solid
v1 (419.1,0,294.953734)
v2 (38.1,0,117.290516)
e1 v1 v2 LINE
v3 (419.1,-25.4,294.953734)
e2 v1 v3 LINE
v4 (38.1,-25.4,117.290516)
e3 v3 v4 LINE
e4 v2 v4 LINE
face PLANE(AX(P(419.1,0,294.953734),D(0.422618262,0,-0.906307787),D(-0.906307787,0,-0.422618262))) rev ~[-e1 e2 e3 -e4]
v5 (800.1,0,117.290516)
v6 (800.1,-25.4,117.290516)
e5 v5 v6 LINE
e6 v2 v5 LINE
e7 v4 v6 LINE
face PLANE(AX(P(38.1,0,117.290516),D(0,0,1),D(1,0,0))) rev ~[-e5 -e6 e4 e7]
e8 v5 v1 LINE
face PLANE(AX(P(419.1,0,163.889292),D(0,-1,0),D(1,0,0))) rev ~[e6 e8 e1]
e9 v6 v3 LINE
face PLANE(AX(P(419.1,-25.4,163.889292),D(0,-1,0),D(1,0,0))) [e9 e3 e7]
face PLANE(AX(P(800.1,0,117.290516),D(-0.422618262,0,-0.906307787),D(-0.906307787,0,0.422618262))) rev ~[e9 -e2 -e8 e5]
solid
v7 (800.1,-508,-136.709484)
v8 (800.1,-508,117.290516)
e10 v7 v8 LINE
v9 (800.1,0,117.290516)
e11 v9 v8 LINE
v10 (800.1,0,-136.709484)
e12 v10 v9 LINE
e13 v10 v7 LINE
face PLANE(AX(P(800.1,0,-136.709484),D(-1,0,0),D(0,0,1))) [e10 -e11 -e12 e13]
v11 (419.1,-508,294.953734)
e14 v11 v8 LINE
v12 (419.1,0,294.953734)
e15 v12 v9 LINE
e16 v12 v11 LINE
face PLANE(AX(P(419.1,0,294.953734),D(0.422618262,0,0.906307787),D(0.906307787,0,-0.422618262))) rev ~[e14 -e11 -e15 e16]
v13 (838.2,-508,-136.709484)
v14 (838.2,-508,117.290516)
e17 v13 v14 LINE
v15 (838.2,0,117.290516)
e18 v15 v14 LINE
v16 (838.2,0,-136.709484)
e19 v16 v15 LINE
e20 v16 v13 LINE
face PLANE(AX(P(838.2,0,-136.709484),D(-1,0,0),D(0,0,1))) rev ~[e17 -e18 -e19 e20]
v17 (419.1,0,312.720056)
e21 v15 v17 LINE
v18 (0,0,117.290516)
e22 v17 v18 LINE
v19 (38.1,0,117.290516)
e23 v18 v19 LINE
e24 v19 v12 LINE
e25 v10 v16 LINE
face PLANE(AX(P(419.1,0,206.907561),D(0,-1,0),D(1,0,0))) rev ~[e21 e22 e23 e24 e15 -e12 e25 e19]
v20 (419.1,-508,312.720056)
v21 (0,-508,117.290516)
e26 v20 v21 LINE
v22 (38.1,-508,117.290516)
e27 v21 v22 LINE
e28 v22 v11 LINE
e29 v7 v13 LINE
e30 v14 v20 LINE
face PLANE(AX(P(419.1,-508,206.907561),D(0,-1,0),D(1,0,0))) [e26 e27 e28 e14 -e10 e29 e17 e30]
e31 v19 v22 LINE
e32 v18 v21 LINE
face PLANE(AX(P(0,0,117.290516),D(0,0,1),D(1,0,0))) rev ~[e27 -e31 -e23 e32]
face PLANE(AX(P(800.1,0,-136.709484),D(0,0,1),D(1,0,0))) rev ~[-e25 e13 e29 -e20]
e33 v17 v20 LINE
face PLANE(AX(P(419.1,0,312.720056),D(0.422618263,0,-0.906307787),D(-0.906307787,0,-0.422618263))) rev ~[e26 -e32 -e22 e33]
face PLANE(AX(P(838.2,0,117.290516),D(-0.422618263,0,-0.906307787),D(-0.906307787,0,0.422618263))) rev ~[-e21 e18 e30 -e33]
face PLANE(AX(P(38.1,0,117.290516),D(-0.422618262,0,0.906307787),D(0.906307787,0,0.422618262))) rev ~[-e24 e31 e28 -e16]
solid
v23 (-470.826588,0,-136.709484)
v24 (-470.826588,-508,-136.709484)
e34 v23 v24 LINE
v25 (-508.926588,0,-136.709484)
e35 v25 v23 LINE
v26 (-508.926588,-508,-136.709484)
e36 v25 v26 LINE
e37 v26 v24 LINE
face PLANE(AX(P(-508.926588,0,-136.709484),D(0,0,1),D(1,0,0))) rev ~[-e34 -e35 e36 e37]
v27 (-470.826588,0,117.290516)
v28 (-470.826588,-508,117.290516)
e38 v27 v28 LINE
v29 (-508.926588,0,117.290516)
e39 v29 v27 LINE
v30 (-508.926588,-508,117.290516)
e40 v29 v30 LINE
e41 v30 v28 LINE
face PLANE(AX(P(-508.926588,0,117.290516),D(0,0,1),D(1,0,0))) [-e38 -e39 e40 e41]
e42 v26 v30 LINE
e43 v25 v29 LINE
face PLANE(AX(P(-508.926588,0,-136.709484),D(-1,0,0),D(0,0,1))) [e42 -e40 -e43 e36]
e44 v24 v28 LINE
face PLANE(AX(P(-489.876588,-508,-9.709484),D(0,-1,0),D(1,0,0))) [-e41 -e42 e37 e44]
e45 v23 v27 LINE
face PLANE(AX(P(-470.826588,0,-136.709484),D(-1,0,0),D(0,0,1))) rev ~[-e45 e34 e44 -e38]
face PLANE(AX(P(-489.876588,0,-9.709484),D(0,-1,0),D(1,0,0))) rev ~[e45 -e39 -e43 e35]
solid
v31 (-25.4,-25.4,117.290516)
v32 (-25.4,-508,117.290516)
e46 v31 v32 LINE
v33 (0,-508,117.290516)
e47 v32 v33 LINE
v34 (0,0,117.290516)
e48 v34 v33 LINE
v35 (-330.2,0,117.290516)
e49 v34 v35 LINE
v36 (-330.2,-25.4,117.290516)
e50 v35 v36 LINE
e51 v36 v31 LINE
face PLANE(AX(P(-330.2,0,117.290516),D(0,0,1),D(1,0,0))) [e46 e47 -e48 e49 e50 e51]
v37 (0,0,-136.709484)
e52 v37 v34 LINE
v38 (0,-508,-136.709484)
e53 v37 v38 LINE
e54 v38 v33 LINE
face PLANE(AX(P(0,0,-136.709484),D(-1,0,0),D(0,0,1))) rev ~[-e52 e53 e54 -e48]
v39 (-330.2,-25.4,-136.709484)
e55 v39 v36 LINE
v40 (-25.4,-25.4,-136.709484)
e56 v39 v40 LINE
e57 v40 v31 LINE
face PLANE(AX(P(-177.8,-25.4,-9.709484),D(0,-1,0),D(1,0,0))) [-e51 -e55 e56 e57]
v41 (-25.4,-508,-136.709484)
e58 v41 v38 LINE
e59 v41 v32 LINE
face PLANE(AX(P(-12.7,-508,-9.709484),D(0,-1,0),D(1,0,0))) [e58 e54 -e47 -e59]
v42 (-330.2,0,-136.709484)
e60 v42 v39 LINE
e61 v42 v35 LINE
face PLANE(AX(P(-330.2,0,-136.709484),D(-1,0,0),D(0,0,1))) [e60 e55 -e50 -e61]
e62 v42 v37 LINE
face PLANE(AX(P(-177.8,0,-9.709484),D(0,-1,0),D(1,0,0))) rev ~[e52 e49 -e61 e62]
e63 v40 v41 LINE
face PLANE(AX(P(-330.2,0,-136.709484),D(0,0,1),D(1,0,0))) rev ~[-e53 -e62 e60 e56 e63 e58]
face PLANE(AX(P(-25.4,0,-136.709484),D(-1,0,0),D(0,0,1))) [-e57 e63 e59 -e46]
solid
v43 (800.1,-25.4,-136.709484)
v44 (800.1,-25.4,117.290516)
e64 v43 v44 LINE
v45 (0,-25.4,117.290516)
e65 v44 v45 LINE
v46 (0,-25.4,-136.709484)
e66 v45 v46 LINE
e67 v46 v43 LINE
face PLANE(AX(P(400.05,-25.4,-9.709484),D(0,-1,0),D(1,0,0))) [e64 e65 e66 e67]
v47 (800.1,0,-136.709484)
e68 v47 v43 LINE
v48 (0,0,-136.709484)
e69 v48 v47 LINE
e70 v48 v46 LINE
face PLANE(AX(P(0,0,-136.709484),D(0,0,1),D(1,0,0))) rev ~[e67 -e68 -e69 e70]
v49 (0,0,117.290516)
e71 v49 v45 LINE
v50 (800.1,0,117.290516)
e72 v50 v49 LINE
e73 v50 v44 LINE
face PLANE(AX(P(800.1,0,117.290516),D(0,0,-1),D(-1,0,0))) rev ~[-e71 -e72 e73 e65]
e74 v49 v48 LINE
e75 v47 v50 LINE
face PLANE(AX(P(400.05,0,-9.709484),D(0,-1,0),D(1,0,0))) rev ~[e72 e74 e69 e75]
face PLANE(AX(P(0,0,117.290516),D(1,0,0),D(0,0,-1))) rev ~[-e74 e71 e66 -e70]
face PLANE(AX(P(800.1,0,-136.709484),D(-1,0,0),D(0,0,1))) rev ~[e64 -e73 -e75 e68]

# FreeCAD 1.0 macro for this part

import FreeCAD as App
import Part
import Sketcher
from FreeCAD import Vector
Q = App.Units.Quantity


def add_polygon(sketch, points):
    """Adds a closed chain of lines whose ends are joined by coincident constraints."""
    first, n = sketch.GeometryCount, len(points)
    for a, b in zip(points, points[1:] + points[:1]):
        sketch.addGeometry(Part.LineSegment(App.Vector(*a, 0), App.Vector(*b, 0)), False)
    for i in range(n):
        sketch.addConstraint(Sketcher.Constraint("Coincident", first + i, 2, first + (i + 1) % n, 1))

doc = App.newDocument("Part")
body = doc.addObject("PartDesign::Body", "Body")

sketch1 = body.newObject("Sketcher::SketchObject", "Sketch")
sketch1.AttachmentSupport = (doc.getObject("XZ_Plane"), [""])
sketch1.MapMode = "FlatFace"
add_polygon(sketch1, [(-25, 117), (-25, -137), (0, -137), (0, 117)])
sketch1.addConstraint([
    Sketcher.Constraint("Vertical", 0),
    Sketcher.Constraint("Horizontal", 1),
    Sketcher.Constraint("Vertical", 2),
    Sketcher.Constraint("Horizontal", 3),
    Sketcher.Constraint("PointOnObject", 1, 2, -2),
    Sketcher.Constraint("DistanceX", 1, 1, 1, 2, Q("1 in")),
    Sketcher.Constraint("DistanceY", 0, 2, 0, 1, Q("10 in")),
    Sketcher.Constraint("DistanceY", 0, 2, -1, 1, Q("136.709484 mm")),
])
pad1 = body.newObject("PartDesign::Pad", "Pad")
pad1.Profile = sketch1
pad1.Length = Q("20 in")
body2 = doc.addObject("PartDesign::Body", "Body001")

sketch2 = body2.newObject("Sketcher::SketchObject", "Sketch001")
sketch2.AttachmentSupport = (doc.getObject("XZ_Plane001"), [""])
sketch2.MapMode = "FlatFace"
add_polygon(sketch2, [(800, 117), (800, -137), (838, -137), (838, 117)])
sketch2.addConstraint([
    Sketcher.Constraint("Vertical", 0),
    Sketcher.Constraint("Horizontal", 1),
    Sketcher.Constraint("Vertical", 2),
    Sketcher.Constraint("Horizontal", 3),
    Sketcher.Constraint("DistanceY", 0, 2, 0, 1, Q("10 in")),
    Sketcher.Constraint("DistanceX", 1, 1, 1, 2, Q("1.5 in")),
    Sketcher.Constraint("DistanceX", -1, 1, 1, 2, Q("33 in")),
    Sketcher.Constraint("DistanceY", 0, 2, -1, 1, Q("136.709484 mm")),
])
pad2 = body2.newObject("PartDesign::Pad", "Pad001")
pad2.Profile = sketch2
pad2.Length = Q("20 in")
body.AllowCompound = True
doc.recompute()

boolean = body.newObject("PartDesign::Boolean", "Boolean")
boolean.Type = "Fuse"
boolean.addObjects([body2])

sketch3 = body.newObject("Sketcher::SketchObject", "Sketch002")
sketch3.AttachmentSupport = (doc.getObject("XZ_Plane"), [""])
sketch3.MapMode = "FlatFace"
add_polygon(sketch3, [(419, 313), (0, 117), (38, 117), (419, 295), (800, 117), (838, 117)])
sketch3.addConstraint([
    Sketcher.Constraint("Horizontal", 1),
    Sketcher.Constraint("Horizontal", 4),
    Sketcher.Constraint("PointOnObject", 0, 2, -2),
    Sketcher.Constraint("Parallel", 0, 2),
    Sketcher.Constraint("Parallel", 3, 5),
    Sketcher.Constraint("Horizontal", 1, 2, 3, 2),
    Sketcher.Constraint("Vertical", 2, 2, 5, 2),
    Sketcher.Constraint("Equal", 1, 4),
    Sketcher.Constraint("DistanceX", 1, 1, 1, 2, Q("1.5 in")),
    Sketcher.Constraint("DistanceX", -1, 1, 4, 2, Q("33 in")),
    Sketcher.Constraint("Angle", 0, Q("-155 deg")),
    Sketcher.Constraint("DistanceY", -1, 1, 0, 2, Q("117.290516 mm")),
])
pad3 = body.newObject("PartDesign::Pad", "Pad002")
pad3.Profile = sketch3
pad3.Length = Q("20 in")

sketch4 = body.newObject("Sketcher::SketchObject", "Sketch003")
sketch4.AttachmentSupport = (doc.getObject("XZ_Plane"), [""])
sketch4.MapMode = "FlatFace"
add_polygon(sketch4, [(-330, 117), (-330, -137), (-25, -137), (-25, 117)])
sketch4.addConstraint([
    Sketcher.Constraint("Vertical", 0),
    Sketcher.Constraint("Horizontal", 1),
    Sketcher.Constraint("Vertical", 2),
    Sketcher.Constraint("Horizontal", 3),
    Sketcher.Constraint("DistanceX", 1, 1, 1, 2, Q("12 in")),
    Sketcher.Constraint("DistanceY", 0, 2, 0, 1, Q("10 in")),
    Sketcher.Constraint("DistanceX", 0, 2, -1, 1, Q("13 in")),
    Sketcher.Constraint("DistanceY", 0, 2, -1, 1, Q("136.709484 mm")),
])
pad4 = body.newObject("PartDesign::Pad", "Pad003")
pad4.Profile = sketch4
pad4.Length = Q("1 in")
body3 = doc.addObject("PartDesign::Body", "Body002")

sketch5 = body3.newObject("Sketcher::SketchObject", "Sketch004")
sketch5.AttachmentSupport = (doc.getObject("XZ_Plane002"), [""])
sketch5.MapMode = "FlatFace"
add_polygon(sketch5, [(0, 117), (0, -137), (800, -137), (800, 117)])
sketch5.addConstraint([
    Sketcher.Constraint("Vertical", 0),
    Sketcher.Constraint("Horizontal", 1),
    Sketcher.Constraint("Vertical", 2),
    Sketcher.Constraint("Horizontal", 3),
    Sketcher.Constraint("PointOnObject", 0, 2, -2),
    Sketcher.Constraint("DistanceY", 0, 2, 0, 1, Q("10 in")),
    Sketcher.Constraint("DistanceX", 1, 1, 1, 2, Q("31.5 in")),
    Sketcher.Constraint("DistanceY", 0, 2, -1, 1, Q("136.709484 mm")),
])
pad5 = body3.newObject("PartDesign::Pad", "Pad004")
pad5.Profile = sketch5
pad5.Length = Q("1 in")
body4 = doc.addObject("PartDesign::Body", "Body003")

sketch6 = body4.newObject("Sketcher::SketchObject", "Sketch005")
sketch6.AttachmentSupport = (doc.getObject("XZ_Plane003"), [""])
sketch6.MapMode = "FlatFace"
add_polygon(sketch6, [(419, 295), (38, 117), (800, 117)])
sketch6.addConstraint([
    Sketcher.Constraint("Horizontal", 1),
    Sketcher.Constraint("Equal", 0, 2),
    Sketcher.Constraint("DistanceX", 1, 1, 1, 2, Q("30 in")),
    Sketcher.Constraint("Angle", 0, Q("-155 deg")),
    Sketcher.Constraint("DistanceX", -1, 1, 0, 2, Q("1.5 in")),
    Sketcher.Constraint("DistanceY", -1, 1, 0, 2, Q("117.290516 mm")),
])
pad6 = body4.newObject("PartDesign::Pad", "Pad005")
pad6.Profile = sketch6
pad6.Length = Q("1 in")
body5 = doc.addObject("PartDesign::Body", "Body004")

sketch7 = body5.newObject("Sketcher::SketchObject", "Sketch006")
sketch7.AttachmentSupport = (doc.getObject("XZ_Plane004"), [""])
sketch7.MapMode = "FlatFace"
add_polygon(sketch7, [(-509, 117), (-509, -137), (-471, -137), (-471, 117)])
sketch7.addConstraint([
    Sketcher.Constraint("Vertical", 0),
    Sketcher.Constraint("Horizontal", 1),
    Sketcher.Constraint("Vertical", 2),
    Sketcher.Constraint("Horizontal", 3),
    Sketcher.Constraint("DistanceY", 0, 2, 0, 1, Q("10 in")),
    Sketcher.Constraint("DistanceX", 1, 1, 1, 2, Q("1.5 in")),
    Sketcher.Constraint("DistanceX", 0, 2, -1, 1, Q("508.926588 mm")),
    Sketcher.Constraint("DistanceY", 0, 2, -1, 1, Q("136.709484 mm")),
])
pad7 = body5.newObject("PartDesign::Pad", "Pad006")
pad7.Profile = sketch7
pad7.Length = Q("20 in")

doc.recompute()
